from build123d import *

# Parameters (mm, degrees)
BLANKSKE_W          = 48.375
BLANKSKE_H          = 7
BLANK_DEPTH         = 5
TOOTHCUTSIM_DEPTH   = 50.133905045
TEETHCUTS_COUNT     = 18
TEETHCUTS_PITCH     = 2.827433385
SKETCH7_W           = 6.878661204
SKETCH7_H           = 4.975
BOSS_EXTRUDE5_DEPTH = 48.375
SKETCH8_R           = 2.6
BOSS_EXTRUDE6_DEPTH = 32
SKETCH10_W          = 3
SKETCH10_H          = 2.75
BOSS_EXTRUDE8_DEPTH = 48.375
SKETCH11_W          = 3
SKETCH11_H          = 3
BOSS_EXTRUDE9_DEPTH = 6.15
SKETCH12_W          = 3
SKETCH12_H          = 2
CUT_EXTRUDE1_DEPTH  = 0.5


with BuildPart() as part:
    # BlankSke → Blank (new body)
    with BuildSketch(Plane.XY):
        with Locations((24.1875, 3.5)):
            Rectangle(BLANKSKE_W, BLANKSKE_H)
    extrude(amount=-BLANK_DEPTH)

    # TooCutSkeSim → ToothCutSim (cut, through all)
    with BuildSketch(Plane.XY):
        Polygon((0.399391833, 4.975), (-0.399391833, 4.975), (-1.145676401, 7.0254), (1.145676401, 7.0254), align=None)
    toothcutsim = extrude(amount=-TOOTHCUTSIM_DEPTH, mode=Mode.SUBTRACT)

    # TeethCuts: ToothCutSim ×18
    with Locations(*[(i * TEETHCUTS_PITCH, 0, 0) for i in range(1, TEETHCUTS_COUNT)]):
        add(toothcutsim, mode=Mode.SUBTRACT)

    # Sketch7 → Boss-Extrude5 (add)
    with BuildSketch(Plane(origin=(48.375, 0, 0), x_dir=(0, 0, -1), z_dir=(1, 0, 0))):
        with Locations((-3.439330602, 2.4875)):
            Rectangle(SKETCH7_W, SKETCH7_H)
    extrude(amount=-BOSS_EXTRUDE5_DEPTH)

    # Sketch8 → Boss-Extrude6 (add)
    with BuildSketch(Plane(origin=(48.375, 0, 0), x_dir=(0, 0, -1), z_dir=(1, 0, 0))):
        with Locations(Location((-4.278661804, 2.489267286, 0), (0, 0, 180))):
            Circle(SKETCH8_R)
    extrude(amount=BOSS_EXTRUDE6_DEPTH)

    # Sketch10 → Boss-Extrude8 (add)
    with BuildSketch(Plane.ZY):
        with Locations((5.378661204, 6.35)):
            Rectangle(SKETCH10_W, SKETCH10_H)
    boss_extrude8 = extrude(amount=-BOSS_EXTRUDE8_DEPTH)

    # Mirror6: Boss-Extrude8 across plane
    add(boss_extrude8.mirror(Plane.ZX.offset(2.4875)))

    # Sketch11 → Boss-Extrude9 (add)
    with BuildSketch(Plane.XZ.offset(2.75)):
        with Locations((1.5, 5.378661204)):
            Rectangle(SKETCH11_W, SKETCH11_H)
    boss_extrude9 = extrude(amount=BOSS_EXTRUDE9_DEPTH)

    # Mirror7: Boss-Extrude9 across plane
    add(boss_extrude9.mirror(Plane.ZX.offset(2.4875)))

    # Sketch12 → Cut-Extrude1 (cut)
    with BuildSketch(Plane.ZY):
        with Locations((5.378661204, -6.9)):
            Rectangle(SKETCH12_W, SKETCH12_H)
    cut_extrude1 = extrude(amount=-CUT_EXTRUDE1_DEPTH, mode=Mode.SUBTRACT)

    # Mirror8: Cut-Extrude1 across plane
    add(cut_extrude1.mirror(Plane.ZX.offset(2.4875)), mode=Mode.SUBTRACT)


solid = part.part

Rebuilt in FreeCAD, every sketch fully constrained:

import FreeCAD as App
import Part
import Sketcher

V = App.Vector
Q = App.Units.Quantity

doc = App.newDocument("Part")
body = doc.addObject("PartDesign::Body", "Body")

sketch1 = body.newObject("Sketcher::SketchObject", "Sketch")
sketch1.AttachmentSupport = (doc.getObject("XY_Plane"), [""])
sketch1.MapMode = "FlatFace"
sketch1.addGeometry(Part.LineSegment(V(0, 7, 0), V(0, 0, 0)), False)
sketch1.addGeometry(Part.LineSegment(V(0, 0, 0), V(48, 0, 0)), False)
sketch1.addGeometry(Part.LineSegment(V(48, 0, 0), V(48, 7, 0)), False)
sketch1.addGeometry(Part.LineSegment(V(48, 7, 0), V(0, 7, 0)), False)
sketch1.addConstraint(Sketcher.Constraint("Coincident", 0, 2, 1, 1))
sketch1.addConstraint(Sketcher.Constraint("Coincident", 1, 2, 2, 1))
sketch1.addConstraint(Sketcher.Constraint("Coincident", 2, 2, 3, 1))
sketch1.addConstraint(Sketcher.Constraint("Coincident", 3, 2, 0, 1))
sketch1.addConstraint(Sketcher.Constraint("Vertical", 0))
sketch1.addConstraint(Sketcher.Constraint("Horizontal", 1))
sketch1.addConstraint(Sketcher.Constraint("Vertical", 2))
sketch1.addConstraint(Sketcher.Constraint("Horizontal", 3))
sketch1.addConstraint(Sketcher.Constraint("Coincident", 0, 2, -1, 1))
sketch1.addConstraint(Sketcher.Constraint("DistanceY", 0, 2, 0, 1, 7.0))
sketch1.addConstraint(Sketcher.Constraint("DistanceX", 1, 1, 1, 2, 48.375))
pad1 = body.newObject("PartDesign::Pad", "Pad")
pad1.Profile = sketch1
pad1.Length = 5
pad1.Reversed = True

sketch2 = body.newObject("Sketcher::SketchObject", "Sketch001")
sketch2.AttachmentSupport = (doc.getObject("XY_Plane"), [""])
sketch2.MapMode = "FlatFace"
sketch2.addGeometry(Part.LineSegment(V(-0.4, 5, 0), V(0.4, 5, 0)), False)
sketch2.addGeometry(Part.LineSegment(V(0.4, 5, 0), V(1.1, 7, 0)), False)
sketch2.addGeometry(Part.LineSegment(V(1.1, 7, 0), V(-1.1, 7, 0)), False)
sketch2.addGeometry(Part.LineSegment(V(-1.1, 7, 0), V(-0.4, 5, 0)), False)
sketch2.addConstraint(Sketcher.Constraint("Coincident", 0, 2, 1, 1))
sketch2.addConstraint(Sketcher.Constraint("Coincident", 1, 2, 2, 1))
sketch2.addConstraint(Sketcher.Constraint("Coincident", 2, 2, 3, 1))
sketch2.addConstraint(Sketcher.Constraint("Coincident", 3, 2, 0, 1))
sketch2.addConstraint(Sketcher.Constraint("Horizontal", 0))
sketch2.addConstraint(Sketcher.Constraint("Horizontal", 2))
sketch2.addConstraint(Sketcher.Constraint("Equal", 1, 3))
sketch2.addConstraint(Sketcher.Constraint("Angle", 1, Q("70 deg")))
sketch2.addConstraint(Sketcher.Constraint("DistanceY", -1, 1, 0, 2, 4.975))
sketch2.addConstraint(Sketcher.Constraint("DistanceY", -1, 1, 1, 2, 7.0254))
sketch2.addConstraint(Sketcher.Constraint("DistanceX", 0, 1, 0, 2, 0.798784))
sketch2.addConstraint(Sketcher.Constraint("DistanceX", -1, 1, 0, 2, 0.399392))
pocket1 = body.newObject("PartDesign::Pocket", "Pocket")
pocket1.Profile = sketch2
pocket1.Type = "ThroughAll"
doc.recompute()

linearpattern = body.newObject("PartDesign::LinearPattern", "LinearPattern")
linearpattern.Originals = [pocket1]
linearpattern.Direction = (doc.getObject("X_Axis"), [""])
linearpattern.Mode = "offset"
linearpattern.Offset = 2.827433
linearpattern.Occurrences = 18
body.Tip = linearpattern

sketch3 = body.newObject("Sketcher::SketchObject", "Sketch002")
sketch3.AttachmentSupport = (doc.getObject("YZ_Plane"), [""])
sketch3.MapMode = "FlatFace"
sketch3.AttachmentOffset = App.Placement(V(0, 0, 48.375), App.Rotation())
sketch3.addGeometry(Part.LineSegment(V(5, 6.9, 0), V(0, 6.9, 0)), False)
sketch3.addGeometry(Part.LineSegment(V(0, 6.9, 0), V(0, 0, 0)), False)
sketch3.addGeometry(Part.LineSegment(V(0, 0, 0), V(5, 0, 0)), False)
sketch3.addGeometry(Part.LineSegment(V(5, 0, 0), V(5, 6.9, 0)), False)
sketch3.addConstraint(Sketcher.Constraint("Coincident", 0, 2, 1, 1))
sketch3.addConstraint(Sketcher.Constraint("Coincident", 1, 2, 2, 1))
sketch3.addConstraint(Sketcher.Constraint("Coincident", 2, 2, 3, 1))
sketch3.addConstraint(Sketcher.Constraint("Coincident", 3, 2, 0, 1))
sketch3.addConstraint(Sketcher.Constraint("Horizontal", 0))
sketch3.addConstraint(Sketcher.Constraint("Vertical", 1))
sketch3.addConstraint(Sketcher.Constraint("Horizontal", 2))
sketch3.addConstraint(Sketcher.Constraint("Vertical", 3))
sketch3.addConstraint(Sketcher.Constraint("Coincident", 1, 2, -1, 1))
sketch3.addConstraint(Sketcher.Constraint("DistanceX", 0, 2, 0, 1, 4.975))
sketch3.addConstraint(Sketcher.Constraint("DistanceY", 1, 2, 1, 1, 6.878661))
pad2 = body.newObject("PartDesign::Pad", "Pad001")
pad2.Profile = sketch3
pad2.Length = 48.375
pad2.Reversed = True

sketch4 = body.newObject("Sketcher::SketchObject", "Sketch003")
sketch4.AttachmentSupport = (doc.getObject("YZ_Plane"), [""])
sketch4.MapMode = "FlatFace"
sketch4.AttachmentOffset = App.Placement(V(0, 0, 48.375), App.Rotation())
sketch4.addGeometry(Part.Circle(V(2.5, 4.3, 0), V(0, 0, 1), 2.6), False)
sketch4.addConstraint(Sketcher.Constraint("Diameter", 0, 5.2))
sketch4.addConstraint(Sketcher.Constraint("DistanceY", -1, 1, 0, 3, 4.278662))
sketch4.addConstraint(Sketcher.Constraint("DistanceX", -1, 1, 0, 3, 2.489267))
pad3 = body.newObject("PartDesign::Pad", "Pad002")
pad3.Profile = sketch4
pad3.Length = 32

sketch5 = body.newObject("Sketcher::SketchObject", "Sketch004")
sketch5.AttachmentSupport = (doc.getObject("YZ_Plane"), [""])
sketch5.MapMode = "FlatFace"
sketch5.addGeometry(Part.LineSegment(V(7.7, 3.9, 0), V(5, 3.9, 0)), False)
sketch5.addGeometry(Part.LineSegment(V(5, 3.9, 0), V(5, 6.9, 0)), False)
sketch5.addGeometry(Part.LineSegment(V(5, 6.9, 0), V(7.7, 6.9, 0)), False)
sketch5.addGeometry(Part.LineSegment(V(7.7, 6.9, 0), V(7.7, 3.9, 0)), False)
sketch5.addConstraint(Sketcher.Constraint("Coincident", 0, 2, 1, 1))
sketch5.addConstraint(Sketcher.Constraint("Coincident", 1, 2, 2, 1))
sketch5.addConstraint(Sketcher.Constraint("Coincident", 2, 2, 3, 1))
sketch5.addConstraint(Sketcher.Constraint("Coincident", 3, 2, 0, 1))
sketch5.addConstraint(Sketcher.Constraint("Horizontal", 0))
sketch5.addConstraint(Sketcher.Constraint("Vertical", 1))
sketch5.addConstraint(Sketcher.Constraint("Horizontal", 2))
sketch5.addConstraint(Sketcher.Constraint("Vertical", 3))
sketch5.addConstraint(Sketcher.Constraint("DistanceY", 1, 1, 1, 2, 3.0))
sketch5.addConstraint(Sketcher.Constraint("DistanceX", 0, 2, 0, 1, 2.75))
sketch5.addConstraint(Sketcher.Constraint("DistanceX", -1, 1, 0, 2, 4.975))
sketch5.addConstraint(Sketcher.Constraint("DistanceY", -1, 1, 0, 2, 3.878661))
pad4 = body.newObject("PartDesign::Pad", "Pad003")
pad4.Profile = sketch5
pad4.Length = 48.375
doc.recompute()

datumplane = body.newObject("PartDesign::Plane", "DatumPlane")
datumplane.AttachmentSupport = (doc.getObject("XZ_Plane"), [""])
datumplane.MapMode = "FlatFace"
datumplane.AttachmentOffset = App.Placement(V(0, 0, -2.4875), App.Rotation())
mirrored = body.newObject("PartDesign::Mirrored", "Mirrored")
mirrored.Originals = [pad4]
mirrored.MirrorPlane = (datumplane, [""])
body.Tip = mirrored

sketch6 = body.newObject("Sketcher::SketchObject", "Sketch005")
sketch6.AttachmentSupport = (doc.getObject("XZ_Plane"), [""])
sketch6.MapMode = "FlatFace"
sketch6.AttachmentOffset = App.Placement(V(0, 0, 2.75), App.Rotation())
sketch6.addGeometry(Part.LineSegment(V(0, 6.9, 0), V(0, 3.9, 0)), False)
sketch6.addGeometry(Part.LineSegment(V(0, 3.9, 0), V(3, 3.9, 0)), False)
sketch6.addGeometry(Part.LineSegment(V(3, 3.9, 0), V(3, 6.9, 0)), False)
sketch6.addGeometry(Part.LineSegment(V(3, 6.9, 0), V(0, 6.9, 0)), False)
sketch6.addConstraint(Sketcher.Constraint("Coincident", 0, 2, 1, 1))
sketch6.addConstraint(Sketcher.Constraint("Coincident", 1, 2, 2, 1))
sketch6.addConstraint(Sketcher.Constraint("Coincident", 2, 2, 3, 1))
sketch6.addConstraint(Sketcher.Constraint("Coincident", 3, 2, 0, 1))
sketch6.addConstraint(Sketcher.Constraint("Vertical", 0))
sketch6.addConstraint(Sketcher.Constraint("Horizontal", 1))
sketch6.addConstraint(Sketcher.Constraint("Vertical", 2))
sketch6.addConstraint(Sketcher.Constraint("Horizontal", 3))
sketch6.addConstraint(Sketcher.Constraint("PointOnObject", 0, 2, -2))
sketch6.addConstraint(Sketcher.Constraint("Equal", 3, 0))
sketch6.addConstraint(Sketcher.Constraint("DistanceX", 1, 1, 1, 2, 3.0))
sketch6.addConstraint(Sketcher.Constraint("DistanceY", -1, 1, 0, 2, 3.878661))
pad5 = body.newObject("PartDesign::Pad", "Pad004")
pad5.Profile = sketch6
pad5.Length = 6.15
doc.recompute()

datumplane2 = body.newObject("PartDesign::Plane", "DatumPlane001")
datumplane2.AttachmentSupport = (doc.getObject("XZ_Plane"), [""])
datumplane2.MapMode = "FlatFace"
datumplane2.AttachmentOffset = App.Placement(V(0, 0, -2.4875), App.Rotation())
mirrored2 = body.newObject("PartDesign::Mirrored", "Mirrored001")
mirrored2.Originals = [pad5]
mirrored2.MirrorPlane = (datumplane2, [""])
body.Tip = mirrored2

sketch7 = body.newObject("Sketcher::SketchObject", "Sketch006")
sketch7.AttachmentSupport = (doc.getObject("YZ_Plane"), [""])
sketch7.MapMode = "FlatFace"
sketch7.addGeometry(Part.LineSegment(V(-5.9, 3.9, 0), V(-7.9, 3.9, 0)), False)
sketch7.addGeometry(Part.LineSegment(V(-7.9, 3.9, 0), V(-7.9, 6.9, 0)), False)
sketch7.addGeometry(Part.LineSegment(V(-7.9, 6.9, 0), V(-5.9, 6.9, 0)), False)
sketch7.addGeometry(Part.LineSegment(V(-5.9, 6.9, 0), V(-5.9, 3.9, 0)), False)
sketch7.addConstraint(Sketcher.Constraint("Coincident", 0, 2, 1, 1))
sketch7.addConstraint(Sketcher.Constraint("Coincident", 1, 2, 2, 1))
sketch7.addConstraint(Sketcher.Constraint("Coincident", 2, 2, 3, 1))
sketch7.addConstraint(Sketcher.Constraint("Coincident", 3, 2, 0, 1))
sketch7.addConstraint(Sketcher.Constraint("Horizontal", 0))
sketch7.addConstraint(Sketcher.Constraint("Vertical", 1))
sketch7.addConstraint(Sketcher.Constraint("Horizontal", 2))
sketch7.addConstraint(Sketcher.Constraint("Vertical", 3))
sketch7.addConstraint(Sketcher.Constraint("DistanceX", 0, 2, 0, 1, 2.0))
sketch7.addConstraint(Sketcher.Constraint("DistanceY", 1, 1, 1, 2, 3.0))
sketch7.addConstraint(Sketcher.Constraint("DistanceX", 0, 2, -1, 1, 7.9))
sketch7.addConstraint(Sketcher.Constraint("DistanceY", -1, 1, 0, 2, 3.878661))
pocket2 = body.newObject("PartDesign::Pocket", "Pocket001")
pocket2.Profile = sketch7
pocket2.Length = 0.5
pocket2.Reversed = True
doc.recompute()

datumplane3 = body.newObject("PartDesign::Plane", "DatumPlane002")
datumplane3.AttachmentSupport = (doc.getObject("XZ_Plane"), [""])
datumplane3.MapMode = "FlatFace"
datumplane3.AttachmentOffset = App.Placement(V(0, 0, -2.4875), App.Rotation())
mirrored3 = body.newObject("PartDesign::Mirrored", "Mirrored002")
mirrored3.Originals = [pocket2]
mirrored3.MirrorPlane = (datumplane3, [""])
body.Tip = mirrored3

doc.recompute()
